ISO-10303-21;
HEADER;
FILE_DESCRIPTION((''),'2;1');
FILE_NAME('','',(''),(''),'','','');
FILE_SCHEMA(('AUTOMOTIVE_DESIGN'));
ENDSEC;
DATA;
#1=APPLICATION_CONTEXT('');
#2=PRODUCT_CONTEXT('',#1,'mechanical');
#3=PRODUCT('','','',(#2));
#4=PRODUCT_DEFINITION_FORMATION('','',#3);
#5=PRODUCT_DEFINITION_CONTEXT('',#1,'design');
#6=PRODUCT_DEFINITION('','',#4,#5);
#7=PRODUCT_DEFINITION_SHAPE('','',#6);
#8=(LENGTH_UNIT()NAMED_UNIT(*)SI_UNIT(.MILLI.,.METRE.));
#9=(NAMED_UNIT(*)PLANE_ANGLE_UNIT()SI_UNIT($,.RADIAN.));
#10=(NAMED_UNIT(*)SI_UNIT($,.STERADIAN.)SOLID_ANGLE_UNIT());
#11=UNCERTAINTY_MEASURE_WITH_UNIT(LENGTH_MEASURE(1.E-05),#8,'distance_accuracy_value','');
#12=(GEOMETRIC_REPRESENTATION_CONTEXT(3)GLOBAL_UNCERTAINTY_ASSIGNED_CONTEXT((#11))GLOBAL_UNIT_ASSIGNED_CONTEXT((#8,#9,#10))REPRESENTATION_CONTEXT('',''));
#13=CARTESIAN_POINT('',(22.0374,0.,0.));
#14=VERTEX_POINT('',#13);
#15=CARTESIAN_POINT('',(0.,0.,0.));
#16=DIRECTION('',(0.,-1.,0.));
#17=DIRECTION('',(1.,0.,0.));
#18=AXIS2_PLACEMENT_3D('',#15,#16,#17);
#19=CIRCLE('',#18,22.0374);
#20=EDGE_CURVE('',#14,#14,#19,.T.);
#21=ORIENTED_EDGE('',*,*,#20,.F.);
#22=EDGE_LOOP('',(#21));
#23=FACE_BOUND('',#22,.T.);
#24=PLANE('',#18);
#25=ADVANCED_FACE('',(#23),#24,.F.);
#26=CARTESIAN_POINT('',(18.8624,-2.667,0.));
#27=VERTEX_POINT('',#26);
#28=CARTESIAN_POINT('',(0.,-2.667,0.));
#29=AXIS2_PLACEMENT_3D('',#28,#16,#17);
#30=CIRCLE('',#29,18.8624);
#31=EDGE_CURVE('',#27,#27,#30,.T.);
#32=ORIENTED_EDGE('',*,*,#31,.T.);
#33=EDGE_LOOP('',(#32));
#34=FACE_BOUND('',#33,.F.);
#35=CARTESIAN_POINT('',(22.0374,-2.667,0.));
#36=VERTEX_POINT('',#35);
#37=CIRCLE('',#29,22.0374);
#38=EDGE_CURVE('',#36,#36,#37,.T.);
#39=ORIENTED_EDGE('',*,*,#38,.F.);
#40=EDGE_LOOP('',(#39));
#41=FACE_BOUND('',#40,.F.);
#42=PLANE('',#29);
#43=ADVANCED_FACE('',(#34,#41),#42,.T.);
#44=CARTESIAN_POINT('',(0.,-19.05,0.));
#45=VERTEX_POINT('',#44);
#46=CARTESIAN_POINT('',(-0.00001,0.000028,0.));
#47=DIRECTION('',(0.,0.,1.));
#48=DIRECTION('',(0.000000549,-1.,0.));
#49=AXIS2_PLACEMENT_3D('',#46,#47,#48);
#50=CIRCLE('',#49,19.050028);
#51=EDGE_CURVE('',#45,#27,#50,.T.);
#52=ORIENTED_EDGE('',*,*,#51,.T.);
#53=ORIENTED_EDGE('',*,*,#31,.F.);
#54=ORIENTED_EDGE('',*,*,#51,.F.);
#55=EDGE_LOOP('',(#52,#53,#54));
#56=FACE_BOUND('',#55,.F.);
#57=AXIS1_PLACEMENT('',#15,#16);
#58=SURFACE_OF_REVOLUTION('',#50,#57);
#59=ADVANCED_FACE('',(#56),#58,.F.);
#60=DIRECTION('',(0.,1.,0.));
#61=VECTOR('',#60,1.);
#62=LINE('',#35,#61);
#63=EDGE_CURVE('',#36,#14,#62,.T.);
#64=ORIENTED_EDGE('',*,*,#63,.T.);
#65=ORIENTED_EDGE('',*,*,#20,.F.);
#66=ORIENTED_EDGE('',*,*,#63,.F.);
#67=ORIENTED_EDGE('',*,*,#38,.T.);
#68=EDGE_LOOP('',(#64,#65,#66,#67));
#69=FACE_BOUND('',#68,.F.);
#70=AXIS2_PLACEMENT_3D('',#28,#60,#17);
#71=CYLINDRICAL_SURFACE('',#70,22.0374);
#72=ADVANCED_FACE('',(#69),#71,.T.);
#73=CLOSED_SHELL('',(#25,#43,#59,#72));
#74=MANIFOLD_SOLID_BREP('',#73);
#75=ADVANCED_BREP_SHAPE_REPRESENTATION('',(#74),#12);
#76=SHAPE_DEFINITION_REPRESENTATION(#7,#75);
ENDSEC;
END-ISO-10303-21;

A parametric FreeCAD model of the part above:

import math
import FreeCAD as App
import Part
import Sketcher
Q = App.Units.Quantity

doc = App.newDocument("Part")
body = doc.addObject("PartDesign::Body", "Body")

# Sketch on XY plane
sketch1 = body.newObject("Sketcher::SketchObject", "Sketch")
sketch1.AttachmentSupport = (doc.getObject("XY_Plane"), [""])
sketch1.MapMode = "FlatFace"
sketch1.addGeometry(Part.LineSegment(App.Vector(22.0374, 0, 0), App.Vector(0, 0, 0)), False)
sketch1.addGeometry(Part.LineSegment(App.Vector(0, 0, 0), App.Vector(0, -19.05, 0)), False)
sketch1.addGeometry(Part.ArcOfCircle(Part.Circle(App.Vector(0, 0, 0), App.Vector(0, 0, 1), 19.05), math.radians(-90), math.radians(-8.04784)), False)
sketch1.addGeometry(Part.LineSegment(App.Vector(18.8624, -2.667, 0), App.Vector(22.0374, -2.667, 0)), False)
sketch1.addGeometry(Part.LineSegment(App.Vector(22.0374, -2.667, 0), App.Vector(22.0374, 0, 0)), False)
sketch1.addConstraint(Sketcher.Constraint("Coincident", 0, 2, 1, 1))
sketch1.addConstraint(Sketcher.Constraint("Coincident", 1, 2, 2, 1))
sketch1.addConstraint(Sketcher.Constraint("Coincident", 2, 2, 3, 1))
sketch1.addConstraint(Sketcher.Constraint("Coincident", 3, 2, 4, 1))
sketch1.addConstraint(Sketcher.Constraint("Coincident", 4, 2, 0, 1))
sketch1.addConstraint(Sketcher.Constraint("Horizontal", 0))
sketch1.addConstraint(Sketcher.Constraint("Vertical", 1))
sketch1.addConstraint(Sketcher.Constraint("Horizontal", 3))
sketch1.addConstraint(Sketcher.Constraint("Vertical", 4))
sketch1.addConstraint(Sketcher.Constraint("Coincident", 2, 3, -1, 1))
sketch1.addConstraint(Sketcher.Constraint("Coincident", 0, 2, -1, 1))
sketch1.addConstraint(Sketcher.Constraint("Radius", 2, Q("0.75 in")))
sketch1.addConstraint(Sketcher.Constraint("DistanceX", 3, 1, 3, 2, Q("0.125 in")))
sketch1.addConstraint(Sketcher.Constraint("DistanceY", 4, 1, 4, 2, Q("0.105 in")))
revolution = body.newObject("PartDesign::Revolution", "Revolution")
revolution.Profile = sketch1
revolution.ReferenceAxis = (sketch1, ["V_Axis"])
revolution.Angle = 360

doc.recompute()
